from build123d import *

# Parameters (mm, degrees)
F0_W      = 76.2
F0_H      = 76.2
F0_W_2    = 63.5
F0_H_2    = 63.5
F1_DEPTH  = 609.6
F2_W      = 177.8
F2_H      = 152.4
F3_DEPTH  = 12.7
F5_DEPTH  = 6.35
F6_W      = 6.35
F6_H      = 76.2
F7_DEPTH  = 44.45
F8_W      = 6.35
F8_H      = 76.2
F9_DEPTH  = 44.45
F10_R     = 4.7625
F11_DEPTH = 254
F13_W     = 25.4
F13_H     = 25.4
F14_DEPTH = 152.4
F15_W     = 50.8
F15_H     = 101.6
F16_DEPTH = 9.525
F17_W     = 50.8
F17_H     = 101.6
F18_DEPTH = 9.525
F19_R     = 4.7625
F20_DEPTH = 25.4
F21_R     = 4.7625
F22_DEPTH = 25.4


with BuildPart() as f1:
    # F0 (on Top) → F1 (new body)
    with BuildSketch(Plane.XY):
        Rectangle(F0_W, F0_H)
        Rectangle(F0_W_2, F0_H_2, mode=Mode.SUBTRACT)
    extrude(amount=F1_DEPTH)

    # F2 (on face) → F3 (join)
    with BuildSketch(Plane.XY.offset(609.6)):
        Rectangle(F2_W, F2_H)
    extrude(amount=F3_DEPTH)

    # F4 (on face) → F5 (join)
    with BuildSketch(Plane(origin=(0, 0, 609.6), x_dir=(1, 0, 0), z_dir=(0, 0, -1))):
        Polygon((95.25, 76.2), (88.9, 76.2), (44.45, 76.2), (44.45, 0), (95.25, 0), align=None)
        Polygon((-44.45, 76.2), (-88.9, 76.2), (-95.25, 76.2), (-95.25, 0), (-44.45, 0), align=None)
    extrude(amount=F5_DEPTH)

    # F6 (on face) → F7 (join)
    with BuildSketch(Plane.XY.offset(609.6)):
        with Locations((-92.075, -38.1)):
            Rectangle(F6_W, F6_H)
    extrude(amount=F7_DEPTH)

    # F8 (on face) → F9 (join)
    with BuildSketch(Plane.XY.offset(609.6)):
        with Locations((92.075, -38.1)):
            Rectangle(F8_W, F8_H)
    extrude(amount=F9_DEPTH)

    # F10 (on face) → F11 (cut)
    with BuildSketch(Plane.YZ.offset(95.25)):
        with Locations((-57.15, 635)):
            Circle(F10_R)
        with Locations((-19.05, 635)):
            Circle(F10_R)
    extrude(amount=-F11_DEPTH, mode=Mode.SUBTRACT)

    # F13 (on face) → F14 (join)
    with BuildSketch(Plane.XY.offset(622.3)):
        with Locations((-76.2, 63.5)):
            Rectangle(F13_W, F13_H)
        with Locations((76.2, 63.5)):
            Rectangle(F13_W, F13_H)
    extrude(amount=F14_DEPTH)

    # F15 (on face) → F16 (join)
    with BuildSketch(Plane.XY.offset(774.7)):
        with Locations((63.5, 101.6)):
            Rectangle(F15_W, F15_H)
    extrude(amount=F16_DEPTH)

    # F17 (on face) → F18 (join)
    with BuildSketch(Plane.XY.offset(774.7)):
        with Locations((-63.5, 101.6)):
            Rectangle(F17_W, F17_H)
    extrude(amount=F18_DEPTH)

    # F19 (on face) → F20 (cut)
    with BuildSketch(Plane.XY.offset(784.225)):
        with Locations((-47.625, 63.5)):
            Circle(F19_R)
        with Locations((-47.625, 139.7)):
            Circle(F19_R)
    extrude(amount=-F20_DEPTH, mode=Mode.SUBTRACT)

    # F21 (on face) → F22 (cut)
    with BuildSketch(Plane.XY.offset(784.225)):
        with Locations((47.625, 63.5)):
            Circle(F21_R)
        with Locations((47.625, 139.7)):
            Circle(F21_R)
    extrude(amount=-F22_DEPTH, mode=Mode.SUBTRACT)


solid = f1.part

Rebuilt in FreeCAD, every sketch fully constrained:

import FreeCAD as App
import Part
import Sketcher

V = App.Vector
Q = App.Units.Quantity

doc = App.newDocument("Part")
body = doc.addObject("PartDesign::Body", "Body")

sketch1 = body.newObject("Sketcher::SketchObject", "Sketch")
sketch1.AttachmentSupport = (doc.getObject("XY_Plane"), [""])
sketch1.MapMode = "FlatFace"
sketch1.addGeometry(Part.LineSegment(V(-38, 38, 0), V(-38, -38, 0)), False)
sketch1.addGeometry(Part.LineSegment(V(-38, -38, 0), V(38, -38, 0)), False)
sketch1.addGeometry(Part.LineSegment(V(38, -38, 0), V(38, 38, 0)), False)
sketch1.addGeometry(Part.LineSegment(V(38, 38, 0), V(-38, 38, 0)), False)
sketch1.addGeometry(Part.LineSegment(V(32, -32, 0), V(-32, -32, 0)), False)
sketch1.addGeometry(Part.LineSegment(V(-32, -32, 0), V(-32, 32, 0)), False)
sketch1.addGeometry(Part.LineSegment(V(-32, 32, 0), V(32, 32, 0)), False)
sketch1.addGeometry(Part.LineSegment(V(32, 32, 0), V(32, -32, 0)), False)
sketch1.addConstraint(Sketcher.Constraint("Coincident", 0, 2, 1, 1))
sketch1.addConstraint(Sketcher.Constraint("Coincident", 1, 2, 2, 1))
sketch1.addConstraint(Sketcher.Constraint("Coincident", 2, 2, 3, 1))
sketch1.addConstraint(Sketcher.Constraint("Coincident", 3, 2, 0, 1))
sketch1.addConstraint(Sketcher.Constraint("Coincident", 4, 2, 5, 1))
sketch1.addConstraint(Sketcher.Constraint("Coincident", 5, 2, 6, 1))
sketch1.addConstraint(Sketcher.Constraint("Coincident", 6, 2, 7, 1))
sketch1.addConstraint(Sketcher.Constraint("Coincident", 7, 2, 4, 1))
sketch1.addConstraint(Sketcher.Constraint("Vertical", 0))
sketch1.addConstraint(Sketcher.Constraint("Horizontal", 1))
sketch1.addConstraint(Sketcher.Constraint("Vertical", 2))
sketch1.addConstraint(Sketcher.Constraint("Horizontal", 3))
sketch1.addConstraint(Sketcher.Constraint("Horizontal", 4))
sketch1.addConstraint(Sketcher.Constraint("Vertical", 5))
sketch1.addConstraint(Sketcher.Constraint("Horizontal", 6))
sketch1.addConstraint(Sketcher.Constraint("Vertical", 7))
sketch1.addConstraint(Sketcher.Constraint("Symmetric", 0, 2, 2, 2, -1, 1))
sketch1.addConstraint(Sketcher.Constraint("Symmetric", 4, 2, 6, 2, -1, 1))
sketch1.addConstraint(Sketcher.Constraint("Equal", 3, 0))
sketch1.addConstraint(Sketcher.Constraint("Equal", 6, 5))
sketch1.addConstraint(Sketcher.Constraint("DistanceX", 1, 1, 1, 2, Q("3 in")))
sketch1.addConstraint(Sketcher.Constraint("DistanceX", 4, 2, 4, 1, Q("2.5 in")))
pad1 = body.newObject("PartDesign::Pad", "Pad")
pad1.Profile = sketch1
pad1.Length = Q("24 in")

sketch2 = body.newObject("Sketcher::SketchObject", "Sketch001")
sketch2.AttachmentSupport = (doc.getObject("XY_Plane"), [""])
sketch2.MapMode = "FlatFace"
sketch2.AttachmentOffset = App.Placement(V(0, 0, 24 * 25.4), App.Rotation())
sketch2.addGeometry(Part.LineSegment(V(-89, 76, 0), V(-89, -76, 0)), False)
sketch2.addGeometry(Part.LineSegment(V(-89, -76, 0), V(89, -76, 0)), False)
sketch2.addGeometry(Part.LineSegment(V(89, -76, 0), V(89, 76, 0)), False)
sketch2.addGeometry(Part.LineSegment(V(89, 76, 0), V(-89, 76, 0)), False)
sketch2.addConstraint(Sketcher.Constraint("Coincident", 0, 2, 1, 1))
sketch2.addConstraint(Sketcher.Constraint("Coincident", 1, 2, 2, 1))
sketch2.addConstraint(Sketcher.Constraint("Coincident", 2, 2, 3, 1))
sketch2.addConstraint(Sketcher.Constraint("Coincident", 3, 2, 0, 1))
sketch2.addConstraint(Sketcher.Constraint("Vertical", 0))
sketch2.addConstraint(Sketcher.Constraint("Horizontal", 1))
sketch2.addConstraint(Sketcher.Constraint("Vertical", 2))
sketch2.addConstraint(Sketcher.Constraint("Horizontal", 3))
sketch2.addConstraint(Sketcher.Constraint("Symmetric", 0, 2, 2, 2, -1, 1))
sketch2.addConstraint(Sketcher.Constraint("DistanceX", 1, 1, 1, 2, Q("7 in")))
sketch2.addConstraint(Sketcher.Constraint("DistanceY", 0, 2, 0, 1, Q("6 in")))
pad2 = body.newObject("PartDesign::Pad", "Pad001")
pad2.Profile = sketch2
pad2.Length = Q("0.5 in")

sketch3 = body.newObject("Sketcher::SketchObject", "Sketch002")
sketch3.AttachmentSupport = (doc.getObject("XY_Plane"), [""])
sketch3.MapMode = "FlatFace"
sketch3.AttachmentOffset = App.Placement(V(0, 0, 24 * 25.4), App.Rotation())
sketch3.addGeometry(Part.LineSegment(V(95, -76, 0), V(44, -76, 0)), False)
sketch3.addGeometry(Part.LineSegment(V(44, -76, 0), V(44, 0, 0)), False)
sketch3.addGeometry(Part.LineSegment(V(44, 0, 0), V(95, 0, 0)), False)
sketch3.addGeometry(Part.LineSegment(V(95, 0, 0), V(95, -76, 0)), False)
sketch3.addGeometry(Part.LineSegment(V(-44, -76, 0), V(-95, -76, 0)), False)
sketch3.addGeometry(Part.LineSegment(V(-95, -76, 0), V(-95, 0, 0)), False)
sketch3.addGeometry(Part.LineSegment(V(-95, 0, 0), V(-44, 0, 0)), False)
sketch3.addGeometry(Part.LineSegment(V(-44, 0, 0), V(-44, -76, 0)), False)
sketch3.addConstraint(Sketcher.Constraint("Coincident", 0, 2, 1, 1))
sketch3.addConstraint(Sketcher.Constraint("Coincident", 1, 2, 2, 1))
sketch3.addConstraint(Sketcher.Constraint("Coincident", 2, 2, 3, 1))
sketch3.addConstraint(Sketcher.Constraint("Coincident", 3, 2, 0, 1))
sketch3.addConstraint(Sketcher.Constraint("Coincident", 4, 2, 5, 1))
sketch3.addConstraint(Sketcher.Constraint("Coincident", 5, 2, 6, 1))
sketch3.addConstraint(Sketcher.Constraint("Coincident", 6, 2, 7, 1))
sketch3.addConstraint(Sketcher.Constraint("Coincident", 7, 2, 4, 1))
sketch3.addConstraint(Sketcher.Constraint("Horizontal", 0))
sketch3.addConstraint(Sketcher.Constraint("Vertical", 1))
sketch3.addConstraint(Sketcher.Constraint("Horizontal", 2))
sketch3.addConstraint(Sketcher.Constraint("Vertical", 3))
sketch3.addConstraint(Sketcher.Constraint("Horizontal", 4))
sketch3.addConstraint(Sketcher.Constraint("Vertical", 5))
sketch3.addConstraint(Sketcher.Constraint("Horizontal", 6))
sketch3.addConstraint(Sketcher.Constraint("Vertical", 7))
sketch3.addConstraint(Sketcher.Constraint("Symmetric", 2, 2, 5, 2, -1, 1))
sketch3.addConstraint(Sketcher.Constraint("Symmetric", 1, 2, 6, 2, -2))
sketch3.addConstraint(Sketcher.Constraint("Horizontal", 3, 2, 4, 2))
sketch3.addConstraint(Sketcher.Constraint("DistanceX", 0, 2, 0, 1, Q("2 in")))
sketch3.addConstraint(Sketcher.Constraint("DistanceY", 1, 1, 1, 2, Q("3 in")))
sketch3.addConstraint(Sketcher.Constraint("DistanceX", 4, 2, 0, 2, Q("5.5 in")))
pad3 = body.newObject("PartDesign::Pad", "Pad002")
pad3.Profile = sketch3
pad3.Length = Q("0.25 in")
pad3.Reversed = True

sketch4 = body.newObject("Sketcher::SketchObject", "Sketch003")
sketch4.AttachmentSupport = (doc.getObject("XY_Plane"), [""])
sketch4.MapMode = "FlatFace"
sketch4.AttachmentOffset = App.Placement(V(0, 0, 24 * 25.4), App.Rotation())
sketch4.addGeometry(Part.LineSegment(V(-95, 0, 0), V(-95, -76, 0)), False)
sketch4.addGeometry(Part.LineSegment(V(-95, -76, 0), V(-89, -76, 0)), False)
sketch4.addGeometry(Part.LineSegment(V(-89, -76, 0), V(-89, 0, 0)), False)
sketch4.addGeometry(Part.LineSegment(V(-89, 0, 0), V(-95, 0, 0)), False)
sketch4.addConstraint(Sketcher.Constraint("Coincident", 0, 2, 1, 1))
sketch4.addConstraint(Sketcher.Constraint("Coincident", 1, 2, 2, 1))
sketch4.addConstraint(Sketcher.Constraint("Coincident", 2, 2, 3, 1))
sketch4.addConstraint(Sketcher.Constraint("Coincident", 3, 2, 0, 1))
sketch4.addConstraint(Sketcher.Constraint("Vertical", 0))
sketch4.addConstraint(Sketcher.Constraint("Horizontal", 1))
sketch4.addConstraint(Sketcher.Constraint("Vertical", 2))
sketch4.addConstraint(Sketcher.Constraint("Horizontal", 3))
sketch4.addConstraint(Sketcher.Constraint("PointOnObject", 2, 2, -1))
sketch4.addConstraint(Sketcher.Constraint("DistanceY", 0, 2, 0, 1, Q("3 in")))
sketch4.addConstraint(Sketcher.Constraint("DistanceX", 1, 1, 1, 2, Q("0.25 in")))
sketch4.addConstraint(Sketcher.Constraint("DistanceX", 1, 2, -1, 1, Q("3.5 in")))
pad4 = body.newObject("PartDesign::Pad", "Pad003")
pad4.Profile = sketch4
pad4.Length = Q("1.75 in")

sketch5 = body.newObject("Sketcher::SketchObject", "Sketch004")
sketch5.AttachmentSupport = (doc.getObject("XY_Plane"), [""])
sketch5.MapMode = "FlatFace"
sketch5.AttachmentOffset = App.Placement(V(0, 0, 24 * 25.4), App.Rotation())
sketch5.addGeometry(Part.LineSegment(V(89, 0, 0), V(89, -76, 0)), False)
sketch5.addGeometry(Part.LineSegment(V(89, -76, 0), V(95, -76, 0)), False)
sketch5.addGeometry(Part.LineSegment(V(95, -76, 0), V(95, 0, 0)), False)
sketch5.addGeometry(Part.LineSegment(V(95, 0, 0), V(89, 0, 0)), False)
sketch5.addConstraint(Sketcher.Constraint("Coincident", 0, 2, 1, 1))
sketch5.addConstraint(Sketcher.Constraint("Coincident", 1, 2, 2, 1))
sketch5.addConstraint(Sketcher.Constraint("Coincident", 2, 2, 3, 1))
sketch5.addConstraint(Sketcher.Constraint("Coincident", 3, 2, 0, 1))
sketch5.addConstraint(Sketcher.Constraint("Vertical", 0))
sketch5.addConstraint(Sketcher.Constraint("Horizontal", 1))
sketch5.addConstraint(Sketcher.Constraint("Vertical", 2))
sketch5.addConstraint(Sketcher.Constraint("Horizontal", 3))
sketch5.addConstraint(Sketcher.Constraint("PointOnObject", 2, 2, -1))
sketch5.addConstraint(Sketcher.Constraint("DistanceY", 0, 2, 0, 1, Q("3 in")))
sketch5.addConstraint(Sketcher.Constraint("DistanceX", 1, 1, 1, 2, Q("0.25 in")))
sketch5.addConstraint(Sketcher.Constraint("DistanceX", -1, 1, 0, 2, Q("3.5 in")))
pad5 = body.newObject("PartDesign::Pad", "Pad004")
pad5.Profile = sketch5
pad5.Length = Q("1.75 in")

sketch6 = body.newObject("Sketcher::SketchObject", "Sketch005")
sketch6.AttachmentSupport = (doc.getObject("YZ_Plane"), [""])
sketch6.MapMode = "FlatFace"
sketch6.AttachmentOffset = App.Placement(V(0, 0, 3.75 * 25.4), App.Rotation())
sketch6.addGeometry(Part.Circle(V(-57.1, 635, 0), V(0, 0, 1), 4.8), False)
sketch6.addGeometry(Part.Circle(V(-19.1, 635, 0), V(0, 0, 1), 4.8), False)
sketch6.addConstraint(Sketcher.Constraint("Equal", 0, 1))
sketch6.addConstraint(Sketcher.Constraint("Horizontal", 0, 3, 1, 3))
sketch6.addConstraint(Sketcher.Constraint("Diameter", 0, Q("0.375 in")))
sketch6.addConstraint(Sketcher.Constraint("DistanceY", -1, 1, 0, 3, Q("25 in")))
sketch6.addConstraint(Sketcher.Constraint("DistanceX", 0, 3, 1, 3, Q("1.5 in")))
sketch6.addConstraint(Sketcher.Constraint("DistanceX", 0, 3, -1, 1, Q("2.25 in")))
pocket1 = body.newObject("PartDesign::Pocket", "Pocket")
pocket1.Profile = sketch6
pocket1.Length = Q("10 in")

sketch7 = body.newObject("Sketcher::SketchObject", "Sketch006")
sketch7.AttachmentSupport = (doc.getObject("XY_Plane"), [""])
sketch7.MapMode = "FlatFace"
sketch7.AttachmentOffset = App.Placement(V(0, 0, 24.5 * 25.4), App.Rotation())
sketch7.addGeometry(Part.LineSegment(V(-89, 76, 0), V(-89, 51, 0)), False)
sketch7.addGeometry(Part.LineSegment(V(-89, 51, 0), V(-64, 51, 0)), False)
sketch7.addGeometry(Part.LineSegment(V(-64, 51, 0), V(-64, 76, 0)), False)
sketch7.addGeometry(Part.LineSegment(V(-64, 76, 0), V(-89, 76, 0)), False)
sketch7.addGeometry(Part.LineSegment(V(64, 76, 0), V(64, 51, 0)), False)
sketch7.addGeometry(Part.LineSegment(V(64, 51, 0), V(89, 51, 0)), False)
sketch7.addGeometry(Part.LineSegment(V(89, 51, 0), V(89, 76, 0)), False)
sketch7.addGeometry(Part.LineSegment(V(89, 76, 0), V(64, 76, 0)), False)
sketch7.addConstraint(Sketcher.Constraint("Coincident", 0, 2, 1, 1))
sketch7.addConstraint(Sketcher.Constraint("Coincident", 1, 2, 2, 1))
sketch7.addConstraint(Sketcher.Constraint("Coincident", 2, 2, 3, 1))
sketch7.addConstraint(Sketcher.Constraint("Coincident", 3, 2, 0, 1))
sketch7.addConstraint(Sketcher.Constraint("Coincident", 4, 2, 5, 1))
sketch7.addConstraint(Sketcher.Constraint("Coincident", 5, 2, 6, 1))
sketch7.addConstraint(Sketcher.Constraint("Coincident", 6, 2, 7, 1))
sketch7.addConstraint(Sketcher.Constraint("Coincident", 7, 2, 4, 1))
sketch7.addConstraint(Sketcher.Constraint("Vertical", 0))
sketch7.addConstraint(Sketcher.Constraint("Horizontal", 1))
sketch7.addConstraint(Sketcher.Constraint("Vertical", 2))
sketch7.addConstraint(Sketcher.Constraint("Horizontal", 3))
sketch7.addConstraint(Sketcher.Constraint("Vertical", 4))
sketch7.addConstraint(Sketcher.Constraint("Horizontal", 5))
sketch7.addConstraint(Sketcher.Constraint("Vertical", 6))
sketch7.addConstraint(Sketcher.Constraint("Horizontal", 7))
sketch7.addConstraint(Sketcher.Constraint("Symmetric", 1, 2, 4, 2, -2))
sketch7.addConstraint(Sketcher.Constraint("Symmetric", 3, 2, 6, 2, -2))
sketch7.addConstraint(Sketcher.Constraint("Equal", 7, 0))
sketch7.addConstraint(Sketcher.Constraint("DistanceX", 1, 1, 1, 2, Q("1 in")))
sketch7.addConstraint(Sketcher.Constraint("DistanceY", -1, 1, 0, 2, Q("2 in")))
sketch7.addConstraint(Sketcher.Constraint("DistanceX", 1, 2, 4, 2, Q("5 in")))
pad6 = body.newObject("PartDesign::Pad", "Pad005")
pad6.Profile = sketch7
pad6.Length = Q("6 in")

sketch8 = body.newObject("Sketcher::SketchObject", "Sketch007")
sketch8.AttachmentSupport = (doc.getObject("XY_Plane"), [""])
sketch8.MapMode = "FlatFace"
sketch8.AttachmentOffset = App.Placement(V(0, 0, 30.5 * 25.4), App.Rotation())
sketch8.addGeometry(Part.LineSegment(V(38, 152, 0), V(38, 51, 0)), False)
sketch8.addGeometry(Part.LineSegment(V(38, 51, 0), V(89, 51, 0)), False)
sketch8.addGeometry(Part.LineSegment(V(89, 51, 0), V(89, 152, 0)), False)
sketch8.addGeometry(Part.LineSegment(V(89, 152, 0), V(38, 152, 0)), False)
sketch8.addConstraint(Sketcher.Constraint("Coincident", 0, 2, 1, 1))
sketch8.addConstraint(Sketcher.Constraint("Coincident", 1, 2, 2, 1))
sketch8.addConstraint(Sketcher.Constraint("Coincident", 2, 2, 3, 1))
sketch8.addConstraint(Sketcher.Constraint("Coincident", 3, 2, 0, 1))
sketch8.addConstraint(Sketcher.Constraint("Vertical", 0))
sketch8.addConstraint(Sketcher.Constraint("Horizontal", 1))
sketch8.addConstraint(Sketcher.Constraint("Vertical", 2))
sketch8.addConstraint(Sketcher.Constraint("Horizontal", 3))
sketch8.addConstraint(Sketcher.Constraint("DistanceX", 1, 1, 1, 2, Q("2 in")))
sketch8.addConstraint(Sketcher.Constraint("DistanceY", 0, 2, 0, 1, Q("4 in")))
sketch8.addConstraint(Sketcher.Constraint("DistanceY", -1, 1, 0, 2, Q("2 in")))
sketch8.addConstraint(Sketcher.Constraint("DistanceX", -1, 1, 0, 2, Q("1.5 in")))
pad7 = body.newObject("PartDesign::Pad", "Pad006")
pad7.Profile = sketch8
pad7.Length = Q("0.375 in")

sketch9 = body.newObject("Sketcher::SketchObject", "Sketch008")
sketch9.AttachmentSupport = (doc.getObject("XY_Plane"), [""])
sketch9.MapMode = "FlatFace"
sketch9.AttachmentOffset = App.Placement(V(0, 0, 30.5 * 25.4), App.Rotation())
sketch9.addGeometry(Part.LineSegment(V(-89, 152, 0), V(-89, 51, 0)), False)
sketch9.addGeometry(Part.LineSegment(V(-89, 51, 0), V(-38, 51, 0)), False)
sketch9.addGeometry(Part.LineSegment(V(-38, 51, 0), V(-38, 152, 0)), False)
sketch9.addGeometry(Part.LineSegment(V(-38, 152, 0), V(-89, 152, 0)), False)
sketch9.addConstraint(Sketcher.Constraint("Coincident", 0, 2, 1, 1))
sketch9.addConstraint(Sketcher.Constraint("Coincident", 1, 2, 2, 1))
sketch9.addConstraint(Sketcher.Constraint("Coincident", 2, 2, 3, 1))
sketch9.addConstraint(Sketcher.Constraint("Coincident", 3, 2, 0, 1))
sketch9.addConstraint(Sketcher.Constraint("Vertical", 0))
sketch9.addConstraint(Sketcher.Constraint("Horizontal", 1))
sketch9.addConstraint(Sketcher.Constraint("Vertical", 2))
sketch9.addConstraint(Sketcher.Constraint("Horizontal", 3))
sketch9.addConstraint(Sketcher.Constraint("DistanceX", 1, 1, 1, 2, Q("2 in")))
sketch9.addConstraint(Sketcher.Constraint("DistanceY", 0, 2, 0, 1, Q("4 in")))
sketch9.addConstraint(Sketcher.Constraint("DistanceY", -1, 1, 0, 2, Q("2 in")))
sketch9.addConstraint(Sketcher.Constraint("DistanceX", 0, 2, -1, 1, Q("3.5 in")))
pad8 = body.newObject("PartDesign::Pad", "Pad007")
pad8.Profile = sketch9
pad8.Length = Q("0.375 in")

sketch10 = body.newObject("Sketcher::SketchObject", "Sketch009")
sketch10.AttachmentSupport = (doc.getObject("XY_Plane"), [""])
sketch10.MapMode = "FlatFace"
sketch10.AttachmentOffset = App.Placement(V(0, 0, 30.875 * 25.4), App.Rotation())
sketch10.addGeometry(Part.Circle(V(-47.6, 63.5, 0), V(0, 0, 1), 4.8), False)
sketch10.addGeometry(Part.Circle(V(-47.6, 139.7, 0), V(0, 0, 1), 4.8), False)
sketch10.addConstraint(Sketcher.Constraint("Equal", 0, 1))
sketch10.addConstraint(Sketcher.Constraint("Vertical", 0, 3, 1, 3))
sketch10.addConstraint(Sketcher.Constraint("Diameter", 0, Q("0.375 in")))
sketch10.addConstraint(Sketcher.Constraint("DistanceY", 0, 3, 1, 3, Q("3 in")))
sketch10.addConstraint(Sketcher.Constraint("DistanceY", -1, 1, 0, 3, Q("2.5 in")))
sketch10.addConstraint(Sketcher.Constraint("DistanceX", 0, 3, -1, 1, Q("1.875 in")))
pocket2 = body.newObject("PartDesign::Pocket", "Pocket001")
pocket2.Profile = sketch10
pocket2.Length = Q("1 in")

sketch11 = body.newObject("Sketcher::SketchObject", "Sketch010")
sketch11.AttachmentSupport = (doc.getObject("XY_Plane"), [""])
sketch11.MapMode = "FlatFace"
sketch11.AttachmentOffset = App.Placement(V(0, 0, 30.875 * 25.4), App.Rotation())
sketch11.addGeometry(Part.Circle(V(47.6, 63.5, 0), V(0, 0, 1), 4.8), False)
sketch11.addGeometry(Part.Circle(V(47.6, 139.7, 0), V(0, 0, 1), 4.8), False)
sketch11.addConstraint(Sketcher.Constraint("Equal", 0, 1))
sketch11.addConstraint(Sketcher.Constraint("Vertical", 0, 3, 1, 3))
sketch11.addConstraint(Sketcher.Constraint("Diameter", 0, Q("0.375 in")))
sketch11.addConstraint(Sketcher.Constraint("DistanceY", 0, 3, 1, 3, Q("3 in")))
sketch11.addConstraint(Sketcher.Constraint("DistanceY", -1, 1, 0, 3, Q("2.5 in")))
sketch11.addConstraint(Sketcher.Constraint("DistanceX", -1, 1, 0, 3, Q("1.875 in")))
pocket3 = body.newObject("PartDesign::Pocket", "Pocket002")
pocket3.Profile = sketch11
pocket3.Length = Q("1 in")

doc.recompute()
